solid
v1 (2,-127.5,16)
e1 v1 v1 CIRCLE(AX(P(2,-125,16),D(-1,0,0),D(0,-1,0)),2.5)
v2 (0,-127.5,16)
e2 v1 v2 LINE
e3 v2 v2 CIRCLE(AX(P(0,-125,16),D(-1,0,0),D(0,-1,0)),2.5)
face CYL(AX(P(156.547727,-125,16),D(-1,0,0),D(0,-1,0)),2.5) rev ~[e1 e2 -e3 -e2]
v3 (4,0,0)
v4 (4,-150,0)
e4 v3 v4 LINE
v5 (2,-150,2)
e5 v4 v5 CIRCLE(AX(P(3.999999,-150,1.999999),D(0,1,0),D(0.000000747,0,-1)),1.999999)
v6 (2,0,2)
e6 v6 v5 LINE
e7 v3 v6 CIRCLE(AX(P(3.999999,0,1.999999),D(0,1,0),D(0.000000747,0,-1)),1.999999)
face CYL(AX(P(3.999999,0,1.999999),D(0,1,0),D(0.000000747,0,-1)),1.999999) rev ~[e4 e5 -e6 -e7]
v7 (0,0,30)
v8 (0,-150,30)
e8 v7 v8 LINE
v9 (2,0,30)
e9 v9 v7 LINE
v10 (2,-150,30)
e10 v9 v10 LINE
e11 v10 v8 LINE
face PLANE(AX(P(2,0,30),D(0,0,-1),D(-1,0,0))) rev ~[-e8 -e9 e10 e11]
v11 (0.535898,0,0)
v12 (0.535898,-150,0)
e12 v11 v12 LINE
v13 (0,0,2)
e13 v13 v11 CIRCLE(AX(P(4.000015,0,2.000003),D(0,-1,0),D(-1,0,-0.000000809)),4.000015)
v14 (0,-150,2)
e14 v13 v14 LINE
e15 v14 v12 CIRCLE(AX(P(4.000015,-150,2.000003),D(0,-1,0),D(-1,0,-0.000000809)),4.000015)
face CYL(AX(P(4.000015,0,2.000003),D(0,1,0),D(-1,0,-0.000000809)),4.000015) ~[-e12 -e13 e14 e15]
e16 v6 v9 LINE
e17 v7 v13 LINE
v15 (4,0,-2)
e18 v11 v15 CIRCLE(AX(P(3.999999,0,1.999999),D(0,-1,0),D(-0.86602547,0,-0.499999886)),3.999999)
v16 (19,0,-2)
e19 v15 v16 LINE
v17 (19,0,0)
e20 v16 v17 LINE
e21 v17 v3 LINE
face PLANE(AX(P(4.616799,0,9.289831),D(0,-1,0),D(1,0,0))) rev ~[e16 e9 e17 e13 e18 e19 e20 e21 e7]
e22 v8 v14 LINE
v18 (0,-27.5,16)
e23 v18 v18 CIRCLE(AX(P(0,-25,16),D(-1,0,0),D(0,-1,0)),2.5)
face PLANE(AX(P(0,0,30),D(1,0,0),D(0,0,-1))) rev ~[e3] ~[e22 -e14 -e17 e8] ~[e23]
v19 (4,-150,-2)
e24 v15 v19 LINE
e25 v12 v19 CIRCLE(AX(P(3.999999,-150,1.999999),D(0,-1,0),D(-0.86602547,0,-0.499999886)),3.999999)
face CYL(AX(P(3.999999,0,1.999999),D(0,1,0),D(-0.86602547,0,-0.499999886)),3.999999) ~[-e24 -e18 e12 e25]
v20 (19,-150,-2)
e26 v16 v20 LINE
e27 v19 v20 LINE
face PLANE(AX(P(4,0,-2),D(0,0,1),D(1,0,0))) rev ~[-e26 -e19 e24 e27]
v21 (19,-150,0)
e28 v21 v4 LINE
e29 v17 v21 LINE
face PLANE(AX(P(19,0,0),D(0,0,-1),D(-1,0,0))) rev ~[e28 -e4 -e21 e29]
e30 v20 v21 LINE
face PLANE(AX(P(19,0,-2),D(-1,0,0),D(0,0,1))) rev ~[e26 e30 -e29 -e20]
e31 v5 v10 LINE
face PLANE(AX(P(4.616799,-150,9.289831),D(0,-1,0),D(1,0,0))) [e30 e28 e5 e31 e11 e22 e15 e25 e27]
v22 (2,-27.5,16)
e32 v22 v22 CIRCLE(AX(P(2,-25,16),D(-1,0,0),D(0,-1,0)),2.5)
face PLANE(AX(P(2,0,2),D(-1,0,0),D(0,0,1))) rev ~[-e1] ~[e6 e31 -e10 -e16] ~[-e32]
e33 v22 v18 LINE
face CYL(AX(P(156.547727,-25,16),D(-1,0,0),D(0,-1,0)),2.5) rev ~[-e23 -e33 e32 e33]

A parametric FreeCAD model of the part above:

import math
import FreeCAD as App
import Part
import Sketcher

V = App.Vector

doc = App.newDocument("Part")
body = doc.addObject("PartDesign::Body", "Body")

# Sketch on XZ plane
sketch1 = body.newObject("Sketcher::SketchObject", "Sketch")
sketch1.AttachmentSupport = (doc.getObject("XZ_Plane"), [""])
sketch1.MapMode = "FlatFace"
sketch1.addGeometry([
    Part.LineSegment(V(2, 30, 0), V(0, 30, 0)),  # 0
    Part.LineSegment(V(0, 30, 0), V(0, 2, 0)),  # 1
    Part.ArcOfCircle(Part.Circle(V(4.000015, 2.000003, 0), V(0, 0, 1), 4.000015), math.radians(-179.999954), math.radians(-150.000067)),  # 2
    Part.ArcOfCircle(Part.Circle(V(3.999999, 1.999999, 0), V(0, 0, 1), 3.999999), math.radians(-150.000008), math.radians(-89.999987)),  # 3
    Part.LineSegment(V(4, -2, 0), V(19, -2, 0)),  # 4
    Part.LineSegment(V(19, -2, 0), V(19, 0, 0)),  # 5
    Part.LineSegment(V(19, 0, 0), V(4, 0, 0)),  # 6
    Part.ArcOfCircle(Part.Circle(V(3.999999, 1.999999, 0), V(0, 0, 1), 1.999999), math.radians(179.999957), math.radians(270.000043)),  # 7
    Part.LineSegment(V(2, 2, 0), V(2, 30, 0)),  # 8
], False)
sketch1.addConstraint([
    Sketcher.Constraint("Coincident", 0, 2, 1, 1),
    Sketcher.Constraint("Tangent", 1, 2, 2, 1),
    Sketcher.Constraint("Tangent", 2, 2, 3, 1),
    Sketcher.Constraint("Tangent", 3, 2, 4, 1),
    Sketcher.Constraint("Coincident", 4, 2, 5, 1),
    Sketcher.Constraint("Coincident", 5, 2, 6, 1),
    Sketcher.Constraint("Tangent", 6, 2, 7, 2),
    Sketcher.Constraint("Tangent", 7, 1, 8, 1),
    Sketcher.Constraint("Coincident", 8, 2, 0, 1),
    Sketcher.Constraint("Horizontal", 0),
    Sketcher.Constraint("Vertical", 1),
    Sketcher.Constraint("Horizontal", 4),
    Sketcher.Constraint("Vertical", 5),
    Sketcher.Constraint("Horizontal", 6),
    Sketcher.Constraint("Vertical", 8),
    Sketcher.Constraint("Coincident", 7, 3, 3, 3),
    Sketcher.Constraint("PointOnObject", 0, 2, -2),
    Sketcher.Constraint("PointOnObject", 2, 2, -1),
    Sketcher.Constraint("PointOnObject", 5, 2, -1),
    Sketcher.Constraint("Horizontal", 7, 3, 1, 2),
    Sketcher.Constraint("Radius", 3, 3.999999),
    Sketcher.Constraint("Radius", 7, 1.999999),
    Sketcher.Constraint("DistanceX", 4, 1, 4, 2, 15.0),
    Sketcher.Constraint("DistanceY", 1, 2, 1, 1, 28.0),
])
pad1 = body.newObject("PartDesign::Pad", "Pad")
pad1.Profile = sketch1
pad1.Length = 150

# Sketch on YZ plane
sketch2 = body.newObject("Sketcher::SketchObject", "Sketch001")
sketch2.AttachmentSupport = (doc.getObject("YZ_Plane"), [""])
sketch2.MapMode = "FlatFace"
sketch2.AttachmentOffset = App.Placement(V(0, 0, 2), App.Rotation())
sketch2.addGeometry([
    Part.Circle(V(-125, 16, 0), V(0, 0, 1), 2.5),
    Part.Circle(V(-25, 16, 0), V(0, 0, 1), 2.5),
], False)
sketch2.addConstraint([
    Sketcher.Constraint("Equal", 0, 1),
    Sketcher.Constraint("Horizontal", 0, 3, 1, 3),
    Sketcher.Constraint("Diameter", 0, 5.0),
    Sketcher.Constraint("DistanceX", 0, 3, -1, 1, 125.0),
    Sketcher.Constraint("DistanceY", -1, 1, 0, 3, 16.0),
    Sketcher.Constraint("DistanceX", 1, 3, -1, 1, 25.0),
])
doc.recompute()
hole = body.newObject("PartDesign::Hole", "Hole")
hole.Profile = sketch2
hole.ThreadType = "None"
hole.Diameter = 5
hole.DepthType = "ThroughAll"

doc.recompute()
